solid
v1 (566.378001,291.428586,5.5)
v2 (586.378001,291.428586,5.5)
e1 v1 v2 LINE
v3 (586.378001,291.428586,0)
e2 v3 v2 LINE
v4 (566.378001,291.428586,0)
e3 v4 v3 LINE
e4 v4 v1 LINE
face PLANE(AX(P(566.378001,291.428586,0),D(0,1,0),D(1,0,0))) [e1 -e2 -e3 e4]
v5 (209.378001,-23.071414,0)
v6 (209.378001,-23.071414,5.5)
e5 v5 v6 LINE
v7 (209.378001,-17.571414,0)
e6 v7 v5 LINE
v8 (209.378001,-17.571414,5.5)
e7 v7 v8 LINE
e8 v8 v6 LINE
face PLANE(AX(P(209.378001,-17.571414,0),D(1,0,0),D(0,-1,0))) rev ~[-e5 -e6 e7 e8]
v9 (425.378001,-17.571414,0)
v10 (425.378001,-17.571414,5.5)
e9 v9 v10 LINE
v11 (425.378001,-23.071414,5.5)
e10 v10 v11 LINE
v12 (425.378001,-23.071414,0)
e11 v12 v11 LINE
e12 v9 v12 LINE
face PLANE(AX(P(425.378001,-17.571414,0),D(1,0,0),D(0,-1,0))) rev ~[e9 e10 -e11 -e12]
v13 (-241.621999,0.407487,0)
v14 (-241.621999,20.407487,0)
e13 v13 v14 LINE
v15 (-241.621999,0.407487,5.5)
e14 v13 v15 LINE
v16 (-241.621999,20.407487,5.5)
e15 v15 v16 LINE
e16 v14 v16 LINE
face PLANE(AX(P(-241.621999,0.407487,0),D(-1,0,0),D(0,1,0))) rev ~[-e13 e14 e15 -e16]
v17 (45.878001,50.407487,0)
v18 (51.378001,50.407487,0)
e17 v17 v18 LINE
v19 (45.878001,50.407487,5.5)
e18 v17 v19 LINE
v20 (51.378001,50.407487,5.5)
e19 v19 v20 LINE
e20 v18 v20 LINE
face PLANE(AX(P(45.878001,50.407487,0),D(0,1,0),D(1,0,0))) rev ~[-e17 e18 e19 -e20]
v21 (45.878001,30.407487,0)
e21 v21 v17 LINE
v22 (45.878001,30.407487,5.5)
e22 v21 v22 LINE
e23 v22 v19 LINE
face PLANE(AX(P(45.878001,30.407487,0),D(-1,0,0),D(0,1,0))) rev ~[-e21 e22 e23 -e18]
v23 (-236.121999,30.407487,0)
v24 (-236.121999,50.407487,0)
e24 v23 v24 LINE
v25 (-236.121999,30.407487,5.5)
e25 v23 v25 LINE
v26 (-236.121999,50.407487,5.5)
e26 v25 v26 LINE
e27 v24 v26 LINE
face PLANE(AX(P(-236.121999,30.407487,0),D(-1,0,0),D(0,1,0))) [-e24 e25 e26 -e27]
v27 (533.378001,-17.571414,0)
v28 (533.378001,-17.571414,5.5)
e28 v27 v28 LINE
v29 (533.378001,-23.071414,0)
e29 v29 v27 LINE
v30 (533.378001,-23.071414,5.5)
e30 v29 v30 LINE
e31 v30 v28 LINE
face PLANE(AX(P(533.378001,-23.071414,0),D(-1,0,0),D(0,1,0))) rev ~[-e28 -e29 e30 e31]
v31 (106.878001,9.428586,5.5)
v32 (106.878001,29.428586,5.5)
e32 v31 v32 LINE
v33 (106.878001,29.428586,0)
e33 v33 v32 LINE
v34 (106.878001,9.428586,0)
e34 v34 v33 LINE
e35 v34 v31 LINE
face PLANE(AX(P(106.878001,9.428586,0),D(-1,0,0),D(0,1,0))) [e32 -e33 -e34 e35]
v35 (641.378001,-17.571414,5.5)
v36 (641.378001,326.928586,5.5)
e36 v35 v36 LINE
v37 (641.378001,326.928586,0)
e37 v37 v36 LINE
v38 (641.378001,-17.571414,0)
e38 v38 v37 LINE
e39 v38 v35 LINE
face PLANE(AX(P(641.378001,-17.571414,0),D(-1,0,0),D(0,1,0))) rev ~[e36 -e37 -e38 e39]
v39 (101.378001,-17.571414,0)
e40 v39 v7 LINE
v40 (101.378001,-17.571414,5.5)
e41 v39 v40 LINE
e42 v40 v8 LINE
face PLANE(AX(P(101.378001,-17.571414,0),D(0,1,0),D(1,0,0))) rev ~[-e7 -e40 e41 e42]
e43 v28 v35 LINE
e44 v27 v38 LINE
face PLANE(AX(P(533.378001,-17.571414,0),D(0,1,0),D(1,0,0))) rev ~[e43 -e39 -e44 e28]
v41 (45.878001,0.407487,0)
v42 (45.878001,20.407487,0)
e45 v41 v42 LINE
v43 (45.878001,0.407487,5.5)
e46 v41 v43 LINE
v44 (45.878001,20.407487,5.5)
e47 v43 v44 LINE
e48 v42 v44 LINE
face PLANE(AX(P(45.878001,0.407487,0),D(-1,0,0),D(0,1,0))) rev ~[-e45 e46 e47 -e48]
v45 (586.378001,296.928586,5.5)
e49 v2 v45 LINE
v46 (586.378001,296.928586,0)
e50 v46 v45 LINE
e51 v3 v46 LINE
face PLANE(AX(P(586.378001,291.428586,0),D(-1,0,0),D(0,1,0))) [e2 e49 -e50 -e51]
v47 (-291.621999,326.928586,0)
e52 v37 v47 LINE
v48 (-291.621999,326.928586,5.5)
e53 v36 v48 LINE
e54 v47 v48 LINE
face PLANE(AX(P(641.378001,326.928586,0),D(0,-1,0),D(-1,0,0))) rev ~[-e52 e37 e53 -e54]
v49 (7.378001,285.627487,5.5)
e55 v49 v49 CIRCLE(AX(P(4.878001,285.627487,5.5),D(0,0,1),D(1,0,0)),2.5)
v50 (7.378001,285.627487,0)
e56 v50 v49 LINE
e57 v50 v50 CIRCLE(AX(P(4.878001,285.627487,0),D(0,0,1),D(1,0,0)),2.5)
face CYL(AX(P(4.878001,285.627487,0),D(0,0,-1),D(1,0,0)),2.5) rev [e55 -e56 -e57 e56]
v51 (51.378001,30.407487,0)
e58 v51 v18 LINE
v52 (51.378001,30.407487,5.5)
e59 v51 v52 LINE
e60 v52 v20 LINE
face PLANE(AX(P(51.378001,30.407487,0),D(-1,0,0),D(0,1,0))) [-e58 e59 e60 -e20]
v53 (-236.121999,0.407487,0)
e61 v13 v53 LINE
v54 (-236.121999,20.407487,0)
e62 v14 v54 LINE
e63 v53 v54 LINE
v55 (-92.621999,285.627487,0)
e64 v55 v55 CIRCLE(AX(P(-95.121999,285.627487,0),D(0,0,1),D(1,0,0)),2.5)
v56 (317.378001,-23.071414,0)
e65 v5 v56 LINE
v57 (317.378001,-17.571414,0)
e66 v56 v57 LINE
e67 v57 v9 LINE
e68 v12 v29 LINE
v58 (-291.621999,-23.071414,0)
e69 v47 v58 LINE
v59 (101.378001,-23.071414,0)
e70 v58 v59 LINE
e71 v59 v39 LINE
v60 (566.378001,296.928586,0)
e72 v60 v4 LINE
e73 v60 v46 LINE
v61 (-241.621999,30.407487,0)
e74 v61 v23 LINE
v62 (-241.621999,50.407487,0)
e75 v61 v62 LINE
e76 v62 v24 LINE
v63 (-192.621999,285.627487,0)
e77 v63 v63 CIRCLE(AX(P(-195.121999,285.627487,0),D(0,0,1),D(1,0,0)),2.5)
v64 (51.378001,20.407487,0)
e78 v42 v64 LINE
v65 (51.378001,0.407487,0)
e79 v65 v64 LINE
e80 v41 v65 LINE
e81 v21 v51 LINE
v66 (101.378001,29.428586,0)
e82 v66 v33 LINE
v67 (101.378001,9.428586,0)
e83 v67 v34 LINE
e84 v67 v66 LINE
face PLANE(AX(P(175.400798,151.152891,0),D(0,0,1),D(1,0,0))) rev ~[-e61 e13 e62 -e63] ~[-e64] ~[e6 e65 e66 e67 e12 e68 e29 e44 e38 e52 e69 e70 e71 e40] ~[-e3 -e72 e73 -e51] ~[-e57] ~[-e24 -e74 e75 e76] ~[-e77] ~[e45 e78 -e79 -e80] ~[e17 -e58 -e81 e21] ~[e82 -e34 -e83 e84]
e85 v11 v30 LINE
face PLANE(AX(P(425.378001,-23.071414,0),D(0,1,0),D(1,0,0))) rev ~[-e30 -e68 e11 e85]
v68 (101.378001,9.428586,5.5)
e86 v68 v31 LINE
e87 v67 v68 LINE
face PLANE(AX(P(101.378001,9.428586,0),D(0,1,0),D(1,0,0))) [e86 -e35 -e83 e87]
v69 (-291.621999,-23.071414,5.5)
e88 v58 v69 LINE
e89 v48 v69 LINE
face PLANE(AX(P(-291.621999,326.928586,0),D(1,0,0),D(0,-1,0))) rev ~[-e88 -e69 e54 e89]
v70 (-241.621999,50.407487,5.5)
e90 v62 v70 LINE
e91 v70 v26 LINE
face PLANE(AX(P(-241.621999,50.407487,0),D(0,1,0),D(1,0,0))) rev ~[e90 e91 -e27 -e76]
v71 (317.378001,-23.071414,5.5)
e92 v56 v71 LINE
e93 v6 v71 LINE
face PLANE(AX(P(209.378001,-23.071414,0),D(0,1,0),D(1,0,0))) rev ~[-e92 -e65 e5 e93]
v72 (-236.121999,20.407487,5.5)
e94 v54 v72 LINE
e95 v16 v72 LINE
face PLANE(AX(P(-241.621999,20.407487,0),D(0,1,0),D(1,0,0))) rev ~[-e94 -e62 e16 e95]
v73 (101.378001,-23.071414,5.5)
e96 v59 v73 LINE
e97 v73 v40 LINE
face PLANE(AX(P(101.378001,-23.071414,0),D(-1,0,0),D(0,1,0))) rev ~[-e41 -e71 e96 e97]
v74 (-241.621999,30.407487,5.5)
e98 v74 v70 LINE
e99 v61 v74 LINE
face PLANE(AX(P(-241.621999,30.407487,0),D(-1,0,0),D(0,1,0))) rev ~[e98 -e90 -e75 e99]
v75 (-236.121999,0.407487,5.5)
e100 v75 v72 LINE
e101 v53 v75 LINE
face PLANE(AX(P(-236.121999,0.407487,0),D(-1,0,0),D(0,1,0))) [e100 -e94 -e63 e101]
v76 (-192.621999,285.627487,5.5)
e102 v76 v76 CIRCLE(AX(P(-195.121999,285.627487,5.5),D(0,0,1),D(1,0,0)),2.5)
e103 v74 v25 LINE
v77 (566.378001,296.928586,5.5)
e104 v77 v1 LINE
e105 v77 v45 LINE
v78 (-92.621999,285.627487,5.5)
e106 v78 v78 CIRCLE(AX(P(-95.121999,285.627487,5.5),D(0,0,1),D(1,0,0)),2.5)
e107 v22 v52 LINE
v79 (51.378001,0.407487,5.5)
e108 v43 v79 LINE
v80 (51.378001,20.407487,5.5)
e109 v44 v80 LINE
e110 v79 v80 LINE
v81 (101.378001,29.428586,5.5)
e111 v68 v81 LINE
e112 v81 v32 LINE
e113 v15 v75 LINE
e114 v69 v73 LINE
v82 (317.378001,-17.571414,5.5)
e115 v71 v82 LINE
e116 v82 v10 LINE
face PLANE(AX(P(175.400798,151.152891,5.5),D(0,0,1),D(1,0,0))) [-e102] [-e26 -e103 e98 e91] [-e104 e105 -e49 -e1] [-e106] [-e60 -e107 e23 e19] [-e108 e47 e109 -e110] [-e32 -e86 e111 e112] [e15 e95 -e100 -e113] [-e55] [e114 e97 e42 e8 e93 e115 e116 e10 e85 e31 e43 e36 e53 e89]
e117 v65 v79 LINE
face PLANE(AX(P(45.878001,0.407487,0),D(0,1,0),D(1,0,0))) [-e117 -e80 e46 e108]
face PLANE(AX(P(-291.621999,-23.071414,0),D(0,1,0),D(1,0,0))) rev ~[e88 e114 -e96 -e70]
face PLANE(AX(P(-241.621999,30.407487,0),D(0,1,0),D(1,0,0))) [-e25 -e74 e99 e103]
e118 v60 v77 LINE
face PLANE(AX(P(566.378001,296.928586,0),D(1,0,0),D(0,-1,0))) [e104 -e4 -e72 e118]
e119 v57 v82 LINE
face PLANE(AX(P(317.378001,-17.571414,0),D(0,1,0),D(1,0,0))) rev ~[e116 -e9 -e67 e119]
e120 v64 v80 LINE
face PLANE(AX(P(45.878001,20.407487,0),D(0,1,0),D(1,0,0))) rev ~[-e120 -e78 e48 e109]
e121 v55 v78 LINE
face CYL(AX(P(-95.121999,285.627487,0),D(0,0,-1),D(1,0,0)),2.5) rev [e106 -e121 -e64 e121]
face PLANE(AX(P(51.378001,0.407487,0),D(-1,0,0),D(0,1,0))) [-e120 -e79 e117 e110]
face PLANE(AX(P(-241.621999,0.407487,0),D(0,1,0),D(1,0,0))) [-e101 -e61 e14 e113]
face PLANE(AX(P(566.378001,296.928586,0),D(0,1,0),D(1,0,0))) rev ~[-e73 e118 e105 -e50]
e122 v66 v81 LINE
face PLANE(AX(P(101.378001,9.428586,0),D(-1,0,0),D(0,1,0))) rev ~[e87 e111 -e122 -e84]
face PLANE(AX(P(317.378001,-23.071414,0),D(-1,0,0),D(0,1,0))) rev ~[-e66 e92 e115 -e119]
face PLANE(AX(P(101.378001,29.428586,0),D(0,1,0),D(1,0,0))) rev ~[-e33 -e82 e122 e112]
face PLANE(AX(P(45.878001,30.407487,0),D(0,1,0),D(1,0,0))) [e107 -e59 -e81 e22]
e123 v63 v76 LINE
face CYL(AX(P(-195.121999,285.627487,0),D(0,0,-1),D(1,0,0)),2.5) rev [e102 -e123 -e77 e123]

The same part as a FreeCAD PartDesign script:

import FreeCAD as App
import Part
import Sketcher

V = App.Vector

doc = App.newDocument("Part")
params = doc.addObject("Spreadsheet::Sheet", "Params")
for row, (alias, value) in enumerate([
    ("sketch1_diameter", "5 mm"),
    ("sketch1_width", "393 mm"),
    ("sketch1_width2", "108 mm"),
    ("sketch1_width3", "20 mm"),
    ("sketch1_height", "350 mm"),
    ("pad1_length", "5.5 mm"),
], start=1):
    params.set(f"A{row}", alias)
    params.set(f"B{row}", "=" + value)
    params.setAlias(f"B{row}", alias)

body = doc.addObject("PartDesign::Body", "Body")

# Sketch on XY plane
sketch1 = body.newObject("Sketcher::SketchObject", "Sketch")
sketch1.AttachmentSupport = (doc.getObject("XY_Plane"), [""])
sketch1.MapMode = "FlatFace"
sketch1.addGeometry(Part.LineSegment(V(-291.6, -23.1, 0), V(101.4, -23.1, 0)), False)
sketch1.addGeometry(Part.LineSegment(V(101.4, -23.1, 0), V(101.4, -17.6, 0)), False)
sketch1.addGeometry(Part.LineSegment(V(101.4, -17.6, 0), V(209.4, -17.6, 0)), False)
sketch1.addGeometry(Part.LineSegment(V(209.4, -17.6, 0), V(209.4, -23.1, 0)), False)
sketch1.addGeometry(Part.LineSegment(V(209.4, -23.1, 0), V(317.4, -23.1, 0)), False)
sketch1.addGeometry(Part.LineSegment(V(317.4, -23.1, 0), V(317.4, -17.6, 0)), False)
sketch1.addGeometry(Part.LineSegment(V(317.4, -17.6, 0), V(425.4, -17.6, 0)), False)
sketch1.addGeometry(Part.LineSegment(V(425.4, -17.6, 0), V(425.4, -23.1, 0)), False)
sketch1.addGeometry(Part.LineSegment(V(425.4, -23.1, 0), V(533.4, -23.1, 0)), False)
sketch1.addGeometry(Part.LineSegment(V(533.4, -23.1, 0), V(533.4, -17.6, 0)), False)
sketch1.addGeometry(Part.LineSegment(V(533.4, -17.6, 0), V(641.4, -17.6, 0)), False)
sketch1.addGeometry(Part.LineSegment(V(641.4, -17.6, 0), V(641.4, 326.9, 0)), False)
sketch1.addGeometry(Part.LineSegment(V(641.4, 326.9, 0), V(-291.6, 326.9, 0)), False)
sketch1.addGeometry(Part.LineSegment(V(-291.6, 326.9, 0), V(-291.6, -23.1, 0)), False)
sketch1.addGeometry(Part.LineSegment(V(-236.1, 0.4, 0), V(-241.6, 0.4, 0)), False)
sketch1.addGeometry(Part.LineSegment(V(-241.6, 0.4, 0), V(-241.6, 20.4, 0)), False)
sketch1.addGeometry(Part.LineSegment(V(-241.6, 20.4, 0), V(-236.1, 20.4, 0)), False)
sketch1.addGeometry(Part.LineSegment(V(-236.1, 20.4, 0), V(-236.1, 0.4, 0)), False)
sketch1.addGeometry(Part.LineSegment(V(-236.1, 30.4, 0), V(-241.6, 30.4, 0)), False)
sketch1.addGeometry(Part.LineSegment(V(-241.6, 30.4, 0), V(-241.6, 50.4, 0)), False)
sketch1.addGeometry(Part.LineSegment(V(-241.6, 50.4, 0), V(-236.1, 50.4, 0)), False)
sketch1.addGeometry(Part.LineSegment(V(-236.1, 50.4, 0), V(-236.1, 30.4, 0)), False)
sketch1.addGeometry(Part.LineSegment(V(51.4, 0.4, 0), V(45.9, 0.4, 0)), False)
sketch1.addGeometry(Part.LineSegment(V(45.9, 0.4, 0), V(45.9, 20.4, 0)), False)
sketch1.addGeometry(Part.LineSegment(V(45.9, 20.4, 0), V(51.4, 20.4, 0)), False)
sketch1.addGeometry(Part.LineSegment(V(51.4, 20.4, 0), V(51.4, 0.4, 0)), False)
sketch1.addGeometry(Part.LineSegment(V(106.9, 9.4, 0), V(101.4, 9.4, 0)), False)
sketch1.addGeometry(Part.LineSegment(V(101.4, 9.4, 0), V(101.4, 29.4, 0)), False)
sketch1.addGeometry(Part.LineSegment(V(101.4, 29.4, 0), V(106.9, 29.4, 0)), False)
sketch1.addGeometry(Part.LineSegment(V(106.9, 29.4, 0), V(106.9, 9.4, 0)), False)
sketch1.addGeometry(Part.LineSegment(V(51.4, 30.4, 0), V(45.9, 30.4, 0)), False)
sketch1.addGeometry(Part.LineSegment(V(45.9, 30.4, 0), V(45.9, 50.4, 0)), False)
sketch1.addGeometry(Part.LineSegment(V(45.9, 50.4, 0), V(51.4, 50.4, 0)), False)
sketch1.addGeometry(Part.LineSegment(V(51.4, 50.4, 0), V(51.4, 30.4, 0)), False)
sketch1.addGeometry(Part.Circle(V(-195.1, 285.6, 0), V(0, 0, 1), 2.5), False)
sketch1.addGeometry(Part.Circle(V(-95.1, 285.6, 0), V(0, 0, 1), 2.5), False)
sketch1.addGeometry(Part.Circle(V(4.9, 285.6, 0), V(0, 0, 1), 2.5), False)
sketch1.addGeometry(Part.LineSegment(V(566.4, 296.9, 0), V(586.4, 296.9, 0)), False)
sketch1.addGeometry(Part.LineSegment(V(586.4, 296.9, 0), V(586.4, 291.4, 0)), False)
sketch1.addGeometry(Part.LineSegment(V(586.4, 291.4, 0), V(566.4, 291.4, 0)), False)
sketch1.addGeometry(Part.LineSegment(V(566.4, 291.4, 0), V(566.4, 296.9, 0)), False)
sketch1.addConstraint(Sketcher.Constraint("Coincident", 0, 2, 1, 1))
sketch1.addConstraint(Sketcher.Constraint("Coincident", 1, 2, 2, 1))
sketch1.addConstraint(Sketcher.Constraint("Coincident", 2, 2, 3, 1))
sketch1.addConstraint(Sketcher.Constraint("Coincident", 3, 2, 4, 1))
sketch1.addConstraint(Sketcher.Constraint("Coincident", 4, 2, 5, 1))
sketch1.addConstraint(Sketcher.Constraint("Coincident", 5, 2, 6, 1))
sketch1.addConstraint(Sketcher.Constraint("Coincident", 6, 2, 7, 1))
sketch1.addConstraint(Sketcher.Constraint("Coincident", 7, 2, 8, 1))
sketch1.addConstraint(Sketcher.Constraint("Coincident", 8, 2, 9, 1))
sketch1.addConstraint(Sketcher.Constraint("Coincident", 9, 2, 10, 1))
sketch1.addConstraint(Sketcher.Constraint("Coincident", 10, 2, 11, 1))
sketch1.addConstraint(Sketcher.Constraint("Coincident", 11, 2, 12, 1))
sketch1.addConstraint(Sketcher.Constraint("Coincident", 12, 2, 13, 1))
sketch1.addConstraint(Sketcher.Constraint("Coincident", 13, 2, 0, 1))
sketch1.addConstraint(Sketcher.Constraint("Coincident", 14, 2, 15, 1))
sketch1.addConstraint(Sketcher.Constraint("Coincident", 15, 2, 16, 1))
sketch1.addConstraint(Sketcher.Constraint("Coincident", 16, 2, 17, 1))
sketch1.addConstraint(Sketcher.Constraint("Coincident", 17, 2, 14, 1))
sketch1.addConstraint(Sketcher.Constraint("Coincident", 18, 2, 19, 1))
sketch1.addConstraint(Sketcher.Constraint("Coincident", 19, 2, 20, 1))
sketch1.addConstraint(Sketcher.Constraint("Coincident", 20, 2, 21, 1))
sketch1.addConstraint(Sketcher.Constraint("Coincident", 21, 2, 18, 1))
sketch1.addConstraint(Sketcher.Constraint("Coincident", 22, 2, 23, 1))
sketch1.addConstraint(Sketcher.Constraint("Coincident", 23, 2, 24, 1))
sketch1.addConstraint(Sketcher.Constraint("Coincident", 24, 2, 25, 1))
sketch1.addConstraint(Sketcher.Constraint("Coincident", 25, 2, 22, 1))
sketch1.addConstraint(Sketcher.Constraint("Coincident", 26, 2, 27, 1))
sketch1.addConstraint(Sketcher.Constraint("Coincident", 27, 2, 28, 1))
sketch1.addConstraint(Sketcher.Constraint("Coincident", 28, 2, 29, 1))
sketch1.addConstraint(Sketcher.Constraint("Coincident", 29, 2, 26, 1))
sketch1.addConstraint(Sketcher.Constraint("Coincident", 30, 2, 31, 1))
sketch1.addConstraint(Sketcher.Constraint("Coincident", 31, 2, 32, 1))
sketch1.addConstraint(Sketcher.Constraint("Coincident", 32, 2, 33, 1))
sketch1.addConstraint(Sketcher.Constraint("Coincident", 33, 2, 30, 1))
sketch1.addConstraint(Sketcher.Constraint("Coincident", 37, 2, 38, 1))
sketch1.addConstraint(Sketcher.Constraint("Coincident", 38, 2, 39, 1))
sketch1.addConstraint(Sketcher.Constraint("Coincident", 39, 2, 40, 1))
sketch1.addConstraint(Sketcher.Constraint("Coincident", 40, 2, 37, 1))
sketch1.addConstraint(Sketcher.Constraint("Horizontal", 0))
sketch1.addConstraint(Sketcher.Constraint("Vertical", 1))
sketch1.addConstraint(Sketcher.Constraint("Horizontal", 2))
sketch1.addConstraint(Sketcher.Constraint("Vertical", 3))
sketch1.addConstraint(Sketcher.Constraint("Horizontal", 4))
sketch1.addConstraint(Sketcher.Constraint("Vertical", 5))
sketch1.addConstraint(Sketcher.Constraint("Horizontal", 6))
sketch1.addConstraint(Sketcher.Constraint("Vertical", 7))
sketch1.addConstraint(Sketcher.Constraint("Horizontal", 8))
sketch1.addConstraint(Sketcher.Constraint("Vertical", 9))
sketch1.addConstraint(Sketcher.Constraint("Horizontal", 10))
sketch1.addConstraint(Sketcher.Constraint("Vertical", 11))
sketch1.addConstraint(Sketcher.Constraint("Horizontal", 12))
sketch1.addConstraint(Sketcher.Constraint("Vertical", 13))
sketch1.addConstraint(Sketcher.Constraint("Horizontal", 14))
sketch1.addConstraint(Sketcher.Constraint("Vertical", 15))
sketch1.addConstraint(Sketcher.Constraint("Horizontal", 16))
sketch1.addConstraint(Sketcher.Constraint("Vertical", 17))
sketch1.addConstraint(Sketcher.Constraint("Horizontal", 18))
sketch1.addConstraint(Sketcher.Constraint("Vertical", 19))
sketch1.addConstraint(Sketcher.Constraint("Horizontal", 20))
sketch1.addConstraint(Sketcher.Constraint("Vertical", 21))
sketch1.addConstraint(Sketcher.Constraint("Horizontal", 22))
sketch1.addConstraint(Sketcher.Constraint("Vertical", 23))
sketch1.addConstraint(Sketcher.Constraint("Horizontal", 24))
sketch1.addConstraint(Sketcher.Constraint("Vertical", 25))
sketch1.addConstraint(Sketcher.Constraint("Horizontal", 26))
sketch1.addConstraint(Sketcher.Constraint("Vertical", 27))
sketch1.addConstraint(Sketcher.Constraint("Horizontal", 28))
sketch1.addConstraint(Sketcher.Constraint("Vertical", 29))
sketch1.addConstraint(Sketcher.Constraint("Horizontal", 30))
sketch1.addConstraint(Sketcher.Constraint("Vertical", 31))
sketch1.addConstraint(Sketcher.Constraint("Horizontal", 32))
sketch1.addConstraint(Sketcher.Constraint("Vertical", 33))
sketch1.addConstraint(Sketcher.Constraint("Horizontal", 37))
sketch1.addConstraint(Sketcher.Constraint("Vertical", 38))
sketch1.addConstraint(Sketcher.Constraint("Horizontal", 39))
sketch1.addConstraint(Sketcher.Constraint("Vertical", 40))
sketch1.addConstraint(Sketcher.Constraint("Equal", 34, 35))
sketch1.addConstraint(Sketcher.Constraint("Equal", 35, 36))
sketch1.addConstraint(Sketcher.Constraint("Horizontal", 34, 3, 35, 3))
sketch1.addConstraint(Sketcher.Constraint("Horizontal", 35, 3, 36, 3))
sketch1.addConstraint(Sketcher.Constraint("Horizontal", 0, 2, 3, 2))
sketch1.addConstraint(Sketcher.Constraint("Horizontal", 2, 2, 5, 2))
sketch1.addConstraint(Sketcher.Constraint("Horizontal", 4, 2, 7, 2))
sketch1.addConstraint(Sketcher.Constraint("Horizontal", 6, 2, 9, 2))
sketch1.addConstraint(Sketcher.Constraint("Horizontal", 17, 2, 22, 2))
sketch1.addConstraint(Sketcher.Constraint("Horizontal", 16, 2, 23, 2))
sketch1.addConstraint(Sketcher.Constraint("Horizontal", 21, 2, 30, 2))
sketch1.addConstraint(Sketcher.Constraint("Horizontal", 20, 2, 31, 2))
sketch1.addConstraint(Sketcher.Constraint("Vertical", 15, 2, 18, 2))
sketch1.addConstraint(Sketcher.Constraint("Vertical", 17, 2, 20, 2))
sketch1.addConstraint(Sketcher.Constraint("Vertical", 1, 2, 26, 2))
sketch1.addConstraint(Sketcher.Constraint("Vertical", 23, 2, 30, 2))
sketch1.addConstraint(Sketcher.Constraint("Vertical", 25, 2, 32, 2))
sketch1.addConstraint(Sketcher.Constraint("Equal", 2, 4))
sketch1.addConstraint(Sketcher.Constraint("Equal", 4, 6))
sketch1.addConstraint(Sketcher.Constraint("Equal", 6, 8))
sketch1.addConstraint(Sketcher.Constraint("Equal", 8, 10))
sketch1.addConstraint(Sketcher.Constraint("Equal", 20, 22))
sketch1.addConstraint(Sketcher.Constraint("Equal", 24, 26))
sketch1.addConstraint(Sketcher.Constraint("Equal", 32, 1))
sketch1.addConstraint(Sketcher.Constraint("Equal", 39, 15))
sketch1.addConstraint(Sketcher.Constraint("Equal", 17, 19))
sketch1.addConstraint(Sketcher.Constraint("Equal", 25, 27))
sketch1.addConstraint(Sketcher.Constraint("Equal", 9, 38))
sketch1.addConstraint(Sketcher.Constraint("Diameter", 34, 5.0))
sketch1.addConstraint(Sketcher.Constraint("DistanceX", 0, 1, 0, 2, 393.0))
sketch1.addConstraint(Sketcher.Constraint("DistanceX", 2, 1, 2, 2, 108.0))
sketch1.addConstraint(Sketcher.Constraint("DistanceX", 37, 1, 37, 2, 20.0))
sketch1.addConstraint(Sketcher.Constraint("DistanceY", 13, 2, 13, 1, 350.0))
sketch1.addConstraint(Sketcher.Constraint("DistanceX", 14, 2, 14, 1, 5.5))
sketch1.addConstraint(Sketcher.Constraint("DistanceX", 34, 3, 35, 3, 100.0))
sketch1.addConstraint(Sketcher.Constraint("DistanceX", 35, 3, 36, 3, 100.0))
sketch1.addConstraint(Sketcher.Constraint("DistanceX", 13, 2, 14, 2, 50.0))
sketch1.addConstraint(Sketcher.Constraint("DistanceX", 16, 2, 34, 3, 41.0))
sketch1.addConstraint(Sketcher.Constraint("DistanceY", 15, 2, 18, 2, 10.0))
sketch1.addConstraint(Sketcher.Constraint("DistanceX", 24, 2, 1, 2, 50.0))
sketch1.addConstraint(Sketcher.Constraint("DistanceY", 1, 2, 26, 2, 27.0))
sketch1.addConstraint(Sketcher.Constraint("DistanceX", 37, 2, 11, 2, 55.0))
sketch1.addConstraint(Sketcher.Constraint("DistanceY", 37, 2, 11, 2, 30.0))
sketch1.addConstraint(Sketcher.Constraint("DistanceY", 14, 2, 34, 3, 285.22))
sketch1.addConstraint(Sketcher.Constraint("DistanceX", 34, 3, -1, 1, 195.121999))
sketch1.addConstraint(Sketcher.Constraint("DistanceY", 0, 2, 36, 3, 308.698901))
sketch1.addConstraint(Sketcher.Constraint("DistanceY", -1, 1, 34, 3, 285.627487))
sketch1.setExpression("Constraints[104]", "Params.sketch1_diameter")
sketch1.setExpression("Constraints[105]", "Params.sketch1_width")
sketch1.setExpression("Constraints[106]", "Params.sketch1_width2")
sketch1.setExpression("Constraints[107]", "Params.sketch1_width3")
sketch1.setExpression("Constraints[108]", "Params.sketch1_height")
pad1 = body.newObject("PartDesign::Pad", "Pad")
pad1.Profile = sketch1
pad1.setExpression("Length", "Params.pad1_length")

doc.recompute()
